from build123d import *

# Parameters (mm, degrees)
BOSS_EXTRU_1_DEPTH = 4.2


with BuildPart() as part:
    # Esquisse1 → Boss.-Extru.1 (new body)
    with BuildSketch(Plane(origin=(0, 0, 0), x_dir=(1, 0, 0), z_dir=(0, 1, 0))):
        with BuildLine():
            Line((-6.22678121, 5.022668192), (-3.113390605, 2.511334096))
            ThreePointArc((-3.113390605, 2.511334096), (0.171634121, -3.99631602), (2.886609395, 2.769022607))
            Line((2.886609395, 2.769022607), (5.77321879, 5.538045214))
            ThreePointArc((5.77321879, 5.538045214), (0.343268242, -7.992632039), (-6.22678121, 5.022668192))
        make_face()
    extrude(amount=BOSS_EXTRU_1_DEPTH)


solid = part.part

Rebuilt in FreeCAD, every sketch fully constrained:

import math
import FreeCAD as App
import Part
import Sketcher

doc = App.newDocument("Part")
params = doc.addObject("Spreadsheet::Sheet", "Params")
for row, (alias, value) in enumerate([
    ("sketch1_radius", "8 mm"),
    ("sketch1_radius2", "4 mm"),
    ("pad1_length", "4.2 mm"),
], start=1):
    params.set(f"A{row}", alias)
    params.set(f"B{row}", "=" + value)
    params.setAlias(f"B{row}", alias)

body = doc.addObject("PartDesign::Body", "Body")

# Sketch on XZ plane
sketch1 = body.newObject("Sketcher::SketchObject", "Sketch")
sketch1.AttachmentSupport = (doc.getObject("XZ_Plane"), [""])
sketch1.MapMode = "FlatFace"
sketch1.addGeometry(Part.LineSegment(App.Vector(-3.1, -2.5, 0), App.Vector(-6.2, -5, 0)), False)
sketch1.addGeometry(Part.ArcOfCircle(Part.Circle(App.Vector(0, 0, 0), App.Vector(0, 0, 1), 8), math.radians(-44), math.radians(219)), False)
sketch1.addGeometry(Part.LineSegment(App.Vector(5.8, -5.5, 0), App.Vector(2.9, -2.8, 0)), False)
sketch1.addGeometry(Part.ArcOfCircle(Part.Circle(App.Vector(0, 0, 0), App.Vector(0, 0, 1), 4), math.radians(-44), math.radians(219)), False)
sketch1.addConstraint(Sketcher.Constraint("Coincident", 0, 2, 1, 2))
sketch1.addConstraint(Sketcher.Constraint("Coincident", 1, 1, 2, 1))
sketch1.addConstraint(Sketcher.Constraint("Coincident", 2, 2, 3, 1))
sketch1.addConstraint(Sketcher.Constraint("Coincident", 3, 2, 0, 1))
sketch1.addConstraint(Sketcher.Constraint("Coincident", 1, 3, -1, 1))
sketch1.addConstraint(Sketcher.Constraint("Coincident", 3, 3, -1, 1))
sketch1.addConstraint(Sketcher.Constraint("Radius", 1, 8.0))
sketch1.addConstraint(Sketcher.Constraint("Radius", 3, 4.0))
sketch1.addConstraint(Sketcher.Constraint("DistanceX", 0, 2, 1, 1, 12.0))
sketch1.addConstraint(Sketcher.Constraint("DistanceX", 3, 2, 2, 2, 6.0))
sketch1.addConstraint(Sketcher.Constraint("DistanceX", 0, 2, -1, 1, 6.226781))
sketch1.addConstraint(Sketcher.Constraint("DistanceX", -1, 1, 2, 2, 2.886609))
sketch1.setExpression("Constraints[6]", "Params.sketch1_radius")
sketch1.setExpression("Constraints[7]", "Params.sketch1_radius2")
pad1 = body.newObject("PartDesign::Pad", "Pad")
pad1.Profile = sketch1
pad1.setExpression("Length", "Params.pad1_length")
pad1.Reversed = True

doc.recompute()
